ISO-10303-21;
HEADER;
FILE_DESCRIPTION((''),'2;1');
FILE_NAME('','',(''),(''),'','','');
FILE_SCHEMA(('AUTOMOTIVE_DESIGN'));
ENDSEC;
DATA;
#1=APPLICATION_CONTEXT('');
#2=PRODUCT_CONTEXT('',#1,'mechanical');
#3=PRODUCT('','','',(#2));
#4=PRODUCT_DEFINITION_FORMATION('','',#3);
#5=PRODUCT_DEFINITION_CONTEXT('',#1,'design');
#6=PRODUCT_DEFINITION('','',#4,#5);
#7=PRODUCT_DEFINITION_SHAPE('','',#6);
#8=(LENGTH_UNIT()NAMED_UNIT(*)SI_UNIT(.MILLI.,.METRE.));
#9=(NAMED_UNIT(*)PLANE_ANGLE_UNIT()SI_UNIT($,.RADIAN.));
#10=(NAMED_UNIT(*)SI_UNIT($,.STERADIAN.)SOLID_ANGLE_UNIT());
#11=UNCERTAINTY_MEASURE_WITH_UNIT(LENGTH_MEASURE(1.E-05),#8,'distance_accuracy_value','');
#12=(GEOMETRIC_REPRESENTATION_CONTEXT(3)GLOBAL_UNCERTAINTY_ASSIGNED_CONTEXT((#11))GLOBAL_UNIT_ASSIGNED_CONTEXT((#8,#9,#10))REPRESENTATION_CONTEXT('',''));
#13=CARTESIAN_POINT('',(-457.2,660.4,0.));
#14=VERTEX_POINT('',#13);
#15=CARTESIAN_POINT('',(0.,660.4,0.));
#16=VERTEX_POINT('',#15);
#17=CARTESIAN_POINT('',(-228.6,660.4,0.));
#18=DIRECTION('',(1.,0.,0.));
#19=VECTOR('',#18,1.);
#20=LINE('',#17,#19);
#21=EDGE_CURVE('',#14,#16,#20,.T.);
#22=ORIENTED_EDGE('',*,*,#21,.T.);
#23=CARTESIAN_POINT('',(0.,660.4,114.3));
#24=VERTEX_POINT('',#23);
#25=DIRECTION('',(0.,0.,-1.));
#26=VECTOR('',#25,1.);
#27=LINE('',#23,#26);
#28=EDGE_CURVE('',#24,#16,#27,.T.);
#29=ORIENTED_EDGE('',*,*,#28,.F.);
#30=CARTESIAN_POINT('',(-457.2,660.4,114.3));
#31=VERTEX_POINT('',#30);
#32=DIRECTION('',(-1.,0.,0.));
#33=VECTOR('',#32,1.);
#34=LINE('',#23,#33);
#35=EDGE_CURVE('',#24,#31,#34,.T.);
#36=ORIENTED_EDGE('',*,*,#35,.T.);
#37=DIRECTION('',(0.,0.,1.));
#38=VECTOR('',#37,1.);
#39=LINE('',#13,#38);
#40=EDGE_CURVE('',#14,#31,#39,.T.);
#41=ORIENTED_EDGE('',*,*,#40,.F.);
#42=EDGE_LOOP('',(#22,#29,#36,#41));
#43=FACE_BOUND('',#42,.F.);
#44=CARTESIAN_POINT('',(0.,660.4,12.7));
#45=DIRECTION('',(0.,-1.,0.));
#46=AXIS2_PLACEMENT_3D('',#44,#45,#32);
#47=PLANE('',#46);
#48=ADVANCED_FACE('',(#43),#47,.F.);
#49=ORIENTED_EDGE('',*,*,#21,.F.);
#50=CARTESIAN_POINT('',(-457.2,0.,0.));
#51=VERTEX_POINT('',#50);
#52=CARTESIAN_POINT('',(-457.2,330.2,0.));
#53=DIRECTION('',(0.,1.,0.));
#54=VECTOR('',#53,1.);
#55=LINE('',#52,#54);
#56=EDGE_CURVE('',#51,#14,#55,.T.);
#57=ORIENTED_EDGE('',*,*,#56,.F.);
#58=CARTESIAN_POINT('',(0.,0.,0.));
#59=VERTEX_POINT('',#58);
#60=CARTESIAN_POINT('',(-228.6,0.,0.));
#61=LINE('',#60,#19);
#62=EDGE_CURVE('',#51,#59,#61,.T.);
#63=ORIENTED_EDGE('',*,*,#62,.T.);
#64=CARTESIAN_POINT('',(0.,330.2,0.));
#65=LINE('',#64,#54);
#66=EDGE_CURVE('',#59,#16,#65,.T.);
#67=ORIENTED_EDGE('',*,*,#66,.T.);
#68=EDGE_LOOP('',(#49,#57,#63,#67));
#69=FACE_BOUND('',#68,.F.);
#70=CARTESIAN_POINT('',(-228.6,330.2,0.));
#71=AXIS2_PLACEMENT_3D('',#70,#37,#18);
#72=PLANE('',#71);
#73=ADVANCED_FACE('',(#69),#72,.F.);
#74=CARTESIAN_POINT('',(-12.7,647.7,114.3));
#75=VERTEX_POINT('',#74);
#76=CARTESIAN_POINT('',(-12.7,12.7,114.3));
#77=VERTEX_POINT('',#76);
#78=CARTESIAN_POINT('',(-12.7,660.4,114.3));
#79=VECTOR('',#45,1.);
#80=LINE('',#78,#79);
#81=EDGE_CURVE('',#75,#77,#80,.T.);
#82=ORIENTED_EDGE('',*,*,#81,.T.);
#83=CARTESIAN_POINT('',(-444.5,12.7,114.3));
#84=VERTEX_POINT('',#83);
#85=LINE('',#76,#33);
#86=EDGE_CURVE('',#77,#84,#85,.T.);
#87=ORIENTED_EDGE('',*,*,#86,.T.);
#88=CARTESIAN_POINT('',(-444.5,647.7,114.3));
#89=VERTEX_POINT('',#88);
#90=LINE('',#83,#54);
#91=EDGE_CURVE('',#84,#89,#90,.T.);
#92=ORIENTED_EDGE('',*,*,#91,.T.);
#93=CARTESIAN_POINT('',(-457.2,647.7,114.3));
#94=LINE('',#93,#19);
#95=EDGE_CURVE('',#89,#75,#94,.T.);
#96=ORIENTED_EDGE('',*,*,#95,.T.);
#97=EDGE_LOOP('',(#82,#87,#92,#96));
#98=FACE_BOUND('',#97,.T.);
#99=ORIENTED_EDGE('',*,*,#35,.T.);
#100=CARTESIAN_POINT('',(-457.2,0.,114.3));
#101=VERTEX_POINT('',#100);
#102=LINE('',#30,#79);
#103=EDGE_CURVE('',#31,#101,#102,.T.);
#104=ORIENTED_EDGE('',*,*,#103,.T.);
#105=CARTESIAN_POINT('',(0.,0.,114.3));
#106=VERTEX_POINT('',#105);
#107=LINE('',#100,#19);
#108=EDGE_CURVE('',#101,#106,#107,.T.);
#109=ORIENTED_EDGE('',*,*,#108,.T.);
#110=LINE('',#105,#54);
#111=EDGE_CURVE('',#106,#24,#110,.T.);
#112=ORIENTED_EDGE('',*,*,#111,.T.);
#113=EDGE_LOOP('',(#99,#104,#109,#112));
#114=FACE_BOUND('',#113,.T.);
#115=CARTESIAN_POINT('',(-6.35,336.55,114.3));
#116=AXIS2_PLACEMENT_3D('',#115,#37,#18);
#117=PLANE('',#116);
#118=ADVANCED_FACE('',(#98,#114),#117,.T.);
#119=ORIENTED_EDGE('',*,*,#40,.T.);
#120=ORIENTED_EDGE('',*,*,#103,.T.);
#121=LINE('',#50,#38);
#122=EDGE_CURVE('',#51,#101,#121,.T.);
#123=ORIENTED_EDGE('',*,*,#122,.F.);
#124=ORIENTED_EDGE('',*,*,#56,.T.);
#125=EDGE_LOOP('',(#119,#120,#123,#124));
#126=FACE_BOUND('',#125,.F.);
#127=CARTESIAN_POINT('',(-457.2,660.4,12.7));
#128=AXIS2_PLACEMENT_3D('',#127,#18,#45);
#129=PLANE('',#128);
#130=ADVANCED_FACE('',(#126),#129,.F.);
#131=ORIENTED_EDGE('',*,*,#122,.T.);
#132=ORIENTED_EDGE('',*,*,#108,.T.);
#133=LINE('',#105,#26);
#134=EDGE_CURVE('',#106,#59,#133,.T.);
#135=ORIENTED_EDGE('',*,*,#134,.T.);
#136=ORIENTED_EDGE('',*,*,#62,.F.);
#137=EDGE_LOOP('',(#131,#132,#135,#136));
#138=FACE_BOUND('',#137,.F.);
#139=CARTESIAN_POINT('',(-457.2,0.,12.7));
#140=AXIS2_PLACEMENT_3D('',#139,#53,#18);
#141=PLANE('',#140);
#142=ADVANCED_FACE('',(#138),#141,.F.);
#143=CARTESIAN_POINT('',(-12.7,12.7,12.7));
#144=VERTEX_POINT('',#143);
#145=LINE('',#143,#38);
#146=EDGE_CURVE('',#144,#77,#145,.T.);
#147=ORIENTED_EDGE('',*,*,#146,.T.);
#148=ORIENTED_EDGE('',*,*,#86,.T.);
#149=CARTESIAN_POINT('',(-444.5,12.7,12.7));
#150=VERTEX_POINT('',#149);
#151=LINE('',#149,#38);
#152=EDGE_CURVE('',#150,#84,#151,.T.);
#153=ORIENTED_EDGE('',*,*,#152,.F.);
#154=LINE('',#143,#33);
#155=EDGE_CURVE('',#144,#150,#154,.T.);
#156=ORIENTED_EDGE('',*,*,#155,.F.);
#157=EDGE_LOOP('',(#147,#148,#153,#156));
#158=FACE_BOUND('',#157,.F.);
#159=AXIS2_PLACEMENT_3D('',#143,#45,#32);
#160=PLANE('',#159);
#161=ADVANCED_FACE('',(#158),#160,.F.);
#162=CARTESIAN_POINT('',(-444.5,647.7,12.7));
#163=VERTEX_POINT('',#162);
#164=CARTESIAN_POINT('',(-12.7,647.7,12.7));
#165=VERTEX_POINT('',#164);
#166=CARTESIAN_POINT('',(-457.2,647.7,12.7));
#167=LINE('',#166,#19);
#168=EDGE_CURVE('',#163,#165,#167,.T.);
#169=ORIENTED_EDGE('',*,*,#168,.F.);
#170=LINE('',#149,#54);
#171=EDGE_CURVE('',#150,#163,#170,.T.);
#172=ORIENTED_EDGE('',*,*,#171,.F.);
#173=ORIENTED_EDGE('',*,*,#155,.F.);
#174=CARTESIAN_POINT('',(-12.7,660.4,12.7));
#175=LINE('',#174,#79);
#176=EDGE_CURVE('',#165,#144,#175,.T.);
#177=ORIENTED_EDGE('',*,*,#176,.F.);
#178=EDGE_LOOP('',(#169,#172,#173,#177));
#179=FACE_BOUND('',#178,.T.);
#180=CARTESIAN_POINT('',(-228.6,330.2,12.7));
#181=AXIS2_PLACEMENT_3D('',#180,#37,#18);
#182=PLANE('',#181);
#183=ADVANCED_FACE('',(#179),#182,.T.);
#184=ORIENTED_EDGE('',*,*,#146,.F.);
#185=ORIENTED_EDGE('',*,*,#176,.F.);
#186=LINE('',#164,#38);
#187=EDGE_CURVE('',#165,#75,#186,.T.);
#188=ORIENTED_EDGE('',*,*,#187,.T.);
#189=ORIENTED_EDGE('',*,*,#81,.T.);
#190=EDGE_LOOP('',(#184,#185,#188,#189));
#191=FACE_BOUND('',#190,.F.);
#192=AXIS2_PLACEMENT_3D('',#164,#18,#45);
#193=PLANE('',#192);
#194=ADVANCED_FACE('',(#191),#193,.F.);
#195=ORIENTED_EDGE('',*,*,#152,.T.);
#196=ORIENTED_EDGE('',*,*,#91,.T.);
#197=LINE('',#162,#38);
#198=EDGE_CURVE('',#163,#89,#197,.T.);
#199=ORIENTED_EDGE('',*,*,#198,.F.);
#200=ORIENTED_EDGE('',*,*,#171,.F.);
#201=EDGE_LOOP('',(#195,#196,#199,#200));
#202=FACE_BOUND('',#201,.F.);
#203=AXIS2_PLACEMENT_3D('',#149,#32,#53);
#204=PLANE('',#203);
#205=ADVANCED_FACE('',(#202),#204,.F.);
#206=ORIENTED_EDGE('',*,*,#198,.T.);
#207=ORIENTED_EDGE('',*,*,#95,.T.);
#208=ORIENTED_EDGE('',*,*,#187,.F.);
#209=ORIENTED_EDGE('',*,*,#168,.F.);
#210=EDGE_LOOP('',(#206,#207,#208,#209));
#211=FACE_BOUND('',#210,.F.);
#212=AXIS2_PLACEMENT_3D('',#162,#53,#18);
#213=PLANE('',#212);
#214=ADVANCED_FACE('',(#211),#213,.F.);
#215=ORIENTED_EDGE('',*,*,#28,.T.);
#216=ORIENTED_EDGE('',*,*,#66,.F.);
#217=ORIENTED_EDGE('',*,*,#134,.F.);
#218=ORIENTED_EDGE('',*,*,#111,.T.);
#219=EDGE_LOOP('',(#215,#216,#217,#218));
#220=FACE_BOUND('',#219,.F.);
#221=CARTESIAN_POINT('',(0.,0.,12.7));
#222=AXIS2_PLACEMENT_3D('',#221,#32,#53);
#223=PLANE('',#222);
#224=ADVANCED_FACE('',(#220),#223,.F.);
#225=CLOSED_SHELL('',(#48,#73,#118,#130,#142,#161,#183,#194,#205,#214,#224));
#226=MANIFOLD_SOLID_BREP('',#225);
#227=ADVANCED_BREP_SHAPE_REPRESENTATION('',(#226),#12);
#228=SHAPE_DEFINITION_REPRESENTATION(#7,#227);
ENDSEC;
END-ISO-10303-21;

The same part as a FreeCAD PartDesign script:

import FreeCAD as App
import Part
import Sketcher

V = App.Vector
Q = App.Units.Quantity

doc = App.newDocument("Part")
params = doc.addObject("Spreadsheet::Sheet", "Params")
for row, (alias, value) in enumerate([
    ("sketch1_width", "18 in"),
    ("sketch1_height", "26 in"),
    ("pad1_length", "0.5 in"),
    ("sketch2_width", "18 in"),
    ("sketch2_width2", "17 in"),
    ("sketch2_height", "26 in"),
    ("sketch2_height2", "25 in"),
    ("pad2_length", "4 in"),
], start=1):
    params.set(f"A{row}", alias)
    params.set(f"B{row}", "=" + value)
    params.setAlias(f"B{row}", alias)

body = doc.addObject("PartDesign::Body", "Body")

# Sketch on XY plane
sketch1 = doc.addObject("Sketcher::SketchObject", "Sketch")
body.addObject(sketch1)
sketch1.AttachmentSupport = (doc.XY_Plane, [""])
sketch1.MapMode = "FlatFace"
sketch1.addGeometry([
    Part.LineSegment(V(-457.2, 660.4, 0), V(-457.2, 0, 0)),
    Part.LineSegment(V(-457.2, 0, 0), V(0, 0, 0)),
    Part.LineSegment(V(0, 0, 0), V(0, 660.4, 0)),
    Part.LineSegment(V(0, 660.4, 0), V(-457.2, 660.4, 0)),
], False)
sketch1.addConstraint([
    Sketcher.Constraint("Coincident", 0, 2, 1, 1),
    Sketcher.Constraint("Coincident", 1, 2, 2, 1),
    Sketcher.Constraint("Coincident", 2, 2, 3, 1),
    Sketcher.Constraint("Coincident", 3, 2, 0, 1),
    Sketcher.Constraint("Vertical", 0),
    Sketcher.Constraint("Horizontal", 1),
    Sketcher.Constraint("Vertical", 2),
    Sketcher.Constraint("Horizontal", 3),
    Sketcher.Constraint("Coincident", 1, 2, -1, 1),
    Sketcher.Constraint("DistanceX", 1, 1, 1, 2, Q("18 in")),
    Sketcher.Constraint("DistanceY", 0, 2, 0, 1, Q("26 in")),
])
sketch1.setExpression("Constraints[9]", "Params.sketch1_width")
sketch1.setExpression("Constraints[10]", "Params.sketch1_height")
pad1 = doc.addObject("PartDesign::Pad", "Pad")
body.addObject(pad1)
pad1.Profile = sketch1
pad1.setExpression("Length", "Params.pad1_length")

# Sketch on XY plane
sketch2 = doc.addObject("Sketcher::SketchObject", "Sketch001")
body.addObject(sketch2)
sketch2.AttachmentSupport = (doc.XY_Plane, [""])
sketch2.MapMode = "FlatFace"
sketch2.AttachmentOffset = App.Placement(V(0, 0, 0.5 * 25.4), App.Rotation())
sketch2.addGeometry([
    Part.LineSegment(V(0, 660.4, 0), V(-457.2, 660.4, 0)),  # 0
    Part.LineSegment(V(-457.2, 660.4, 0), V(-457.2, 0, 0)),  # 1
    Part.LineSegment(V(-457.2, 0, 0), V(0, 0, 0)),  # 2
    Part.LineSegment(V(0, 0, 0), V(0, 660.4, 0)),  # 3
    Part.LineSegment(V(-444.5, 647.7, 0), V(-12.7, 647.7, 0)),  # 4
    Part.LineSegment(V(-12.7, 647.7, 0), V(-12.7, 12.7, 0)),  # 5
    Part.LineSegment(V(-12.7, 12.7, 0), V(-444.5, 12.7, 0)),  # 6
    Part.LineSegment(V(-444.5, 12.7, 0), V(-444.5, 647.7, 0)),  # 7
], False)
sketch2.addConstraint([
    Sketcher.Constraint("Coincident", 0, 2, 1, 1),
    Sketcher.Constraint("Coincident", 1, 2, 2, 1),
    Sketcher.Constraint("Coincident", 2, 2, 3, 1),
    Sketcher.Constraint("Coincident", 3, 2, 0, 1),
    Sketcher.Constraint("Coincident", 4, 2, 5, 1),
    Sketcher.Constraint("Coincident", 5, 2, 6, 1),
    Sketcher.Constraint("Coincident", 6, 2, 7, 1),
    Sketcher.Constraint("Coincident", 7, 2, 4, 1),
    Sketcher.Constraint("Horizontal", 0),
    Sketcher.Constraint("Vertical", 1),
    Sketcher.Constraint("Horizontal", 2),
    Sketcher.Constraint("Vertical", 3),
    Sketcher.Constraint("Horizontal", 4),
    Sketcher.Constraint("Vertical", 5),
    Sketcher.Constraint("Horizontal", 6),
    Sketcher.Constraint("Vertical", 7),
    Sketcher.Constraint("Coincident", 2, 2, -1, 1),
    Sketcher.Constraint("DistanceX", 0, 2, 0, 1, Q("18 in")),
    Sketcher.Constraint("DistanceX", 4, 1, 4, 2, Q("17 in")),
    Sketcher.Constraint("DistanceY", 1, 2, 1, 1, Q("26 in")),
    Sketcher.Constraint("DistanceY", 5, 2, 5, 1, Q("25 in")),
    Sketcher.Constraint("DistanceX", 4, 2, -1, 1, Q("0.5 in")),
    Sketcher.Constraint("DistanceY", -1, 1, 4, 2, Q("25.5 in")),
])
sketch2.setExpression("Constraints[17]", "Params.sketch2_width")
sketch2.setExpression("Constraints[18]", "Params.sketch2_width2")
sketch2.setExpression("Constraints[19]", "Params.sketch2_height")
sketch2.setExpression("Constraints[20]", "Params.sketch2_height2")
pad2 = doc.addObject("PartDesign::Pad", "Pad001")
body.addObject(pad2)
pad2.Profile = sketch2
pad2.setExpression("Length", "Params.pad2_length")

doc.recompute()
